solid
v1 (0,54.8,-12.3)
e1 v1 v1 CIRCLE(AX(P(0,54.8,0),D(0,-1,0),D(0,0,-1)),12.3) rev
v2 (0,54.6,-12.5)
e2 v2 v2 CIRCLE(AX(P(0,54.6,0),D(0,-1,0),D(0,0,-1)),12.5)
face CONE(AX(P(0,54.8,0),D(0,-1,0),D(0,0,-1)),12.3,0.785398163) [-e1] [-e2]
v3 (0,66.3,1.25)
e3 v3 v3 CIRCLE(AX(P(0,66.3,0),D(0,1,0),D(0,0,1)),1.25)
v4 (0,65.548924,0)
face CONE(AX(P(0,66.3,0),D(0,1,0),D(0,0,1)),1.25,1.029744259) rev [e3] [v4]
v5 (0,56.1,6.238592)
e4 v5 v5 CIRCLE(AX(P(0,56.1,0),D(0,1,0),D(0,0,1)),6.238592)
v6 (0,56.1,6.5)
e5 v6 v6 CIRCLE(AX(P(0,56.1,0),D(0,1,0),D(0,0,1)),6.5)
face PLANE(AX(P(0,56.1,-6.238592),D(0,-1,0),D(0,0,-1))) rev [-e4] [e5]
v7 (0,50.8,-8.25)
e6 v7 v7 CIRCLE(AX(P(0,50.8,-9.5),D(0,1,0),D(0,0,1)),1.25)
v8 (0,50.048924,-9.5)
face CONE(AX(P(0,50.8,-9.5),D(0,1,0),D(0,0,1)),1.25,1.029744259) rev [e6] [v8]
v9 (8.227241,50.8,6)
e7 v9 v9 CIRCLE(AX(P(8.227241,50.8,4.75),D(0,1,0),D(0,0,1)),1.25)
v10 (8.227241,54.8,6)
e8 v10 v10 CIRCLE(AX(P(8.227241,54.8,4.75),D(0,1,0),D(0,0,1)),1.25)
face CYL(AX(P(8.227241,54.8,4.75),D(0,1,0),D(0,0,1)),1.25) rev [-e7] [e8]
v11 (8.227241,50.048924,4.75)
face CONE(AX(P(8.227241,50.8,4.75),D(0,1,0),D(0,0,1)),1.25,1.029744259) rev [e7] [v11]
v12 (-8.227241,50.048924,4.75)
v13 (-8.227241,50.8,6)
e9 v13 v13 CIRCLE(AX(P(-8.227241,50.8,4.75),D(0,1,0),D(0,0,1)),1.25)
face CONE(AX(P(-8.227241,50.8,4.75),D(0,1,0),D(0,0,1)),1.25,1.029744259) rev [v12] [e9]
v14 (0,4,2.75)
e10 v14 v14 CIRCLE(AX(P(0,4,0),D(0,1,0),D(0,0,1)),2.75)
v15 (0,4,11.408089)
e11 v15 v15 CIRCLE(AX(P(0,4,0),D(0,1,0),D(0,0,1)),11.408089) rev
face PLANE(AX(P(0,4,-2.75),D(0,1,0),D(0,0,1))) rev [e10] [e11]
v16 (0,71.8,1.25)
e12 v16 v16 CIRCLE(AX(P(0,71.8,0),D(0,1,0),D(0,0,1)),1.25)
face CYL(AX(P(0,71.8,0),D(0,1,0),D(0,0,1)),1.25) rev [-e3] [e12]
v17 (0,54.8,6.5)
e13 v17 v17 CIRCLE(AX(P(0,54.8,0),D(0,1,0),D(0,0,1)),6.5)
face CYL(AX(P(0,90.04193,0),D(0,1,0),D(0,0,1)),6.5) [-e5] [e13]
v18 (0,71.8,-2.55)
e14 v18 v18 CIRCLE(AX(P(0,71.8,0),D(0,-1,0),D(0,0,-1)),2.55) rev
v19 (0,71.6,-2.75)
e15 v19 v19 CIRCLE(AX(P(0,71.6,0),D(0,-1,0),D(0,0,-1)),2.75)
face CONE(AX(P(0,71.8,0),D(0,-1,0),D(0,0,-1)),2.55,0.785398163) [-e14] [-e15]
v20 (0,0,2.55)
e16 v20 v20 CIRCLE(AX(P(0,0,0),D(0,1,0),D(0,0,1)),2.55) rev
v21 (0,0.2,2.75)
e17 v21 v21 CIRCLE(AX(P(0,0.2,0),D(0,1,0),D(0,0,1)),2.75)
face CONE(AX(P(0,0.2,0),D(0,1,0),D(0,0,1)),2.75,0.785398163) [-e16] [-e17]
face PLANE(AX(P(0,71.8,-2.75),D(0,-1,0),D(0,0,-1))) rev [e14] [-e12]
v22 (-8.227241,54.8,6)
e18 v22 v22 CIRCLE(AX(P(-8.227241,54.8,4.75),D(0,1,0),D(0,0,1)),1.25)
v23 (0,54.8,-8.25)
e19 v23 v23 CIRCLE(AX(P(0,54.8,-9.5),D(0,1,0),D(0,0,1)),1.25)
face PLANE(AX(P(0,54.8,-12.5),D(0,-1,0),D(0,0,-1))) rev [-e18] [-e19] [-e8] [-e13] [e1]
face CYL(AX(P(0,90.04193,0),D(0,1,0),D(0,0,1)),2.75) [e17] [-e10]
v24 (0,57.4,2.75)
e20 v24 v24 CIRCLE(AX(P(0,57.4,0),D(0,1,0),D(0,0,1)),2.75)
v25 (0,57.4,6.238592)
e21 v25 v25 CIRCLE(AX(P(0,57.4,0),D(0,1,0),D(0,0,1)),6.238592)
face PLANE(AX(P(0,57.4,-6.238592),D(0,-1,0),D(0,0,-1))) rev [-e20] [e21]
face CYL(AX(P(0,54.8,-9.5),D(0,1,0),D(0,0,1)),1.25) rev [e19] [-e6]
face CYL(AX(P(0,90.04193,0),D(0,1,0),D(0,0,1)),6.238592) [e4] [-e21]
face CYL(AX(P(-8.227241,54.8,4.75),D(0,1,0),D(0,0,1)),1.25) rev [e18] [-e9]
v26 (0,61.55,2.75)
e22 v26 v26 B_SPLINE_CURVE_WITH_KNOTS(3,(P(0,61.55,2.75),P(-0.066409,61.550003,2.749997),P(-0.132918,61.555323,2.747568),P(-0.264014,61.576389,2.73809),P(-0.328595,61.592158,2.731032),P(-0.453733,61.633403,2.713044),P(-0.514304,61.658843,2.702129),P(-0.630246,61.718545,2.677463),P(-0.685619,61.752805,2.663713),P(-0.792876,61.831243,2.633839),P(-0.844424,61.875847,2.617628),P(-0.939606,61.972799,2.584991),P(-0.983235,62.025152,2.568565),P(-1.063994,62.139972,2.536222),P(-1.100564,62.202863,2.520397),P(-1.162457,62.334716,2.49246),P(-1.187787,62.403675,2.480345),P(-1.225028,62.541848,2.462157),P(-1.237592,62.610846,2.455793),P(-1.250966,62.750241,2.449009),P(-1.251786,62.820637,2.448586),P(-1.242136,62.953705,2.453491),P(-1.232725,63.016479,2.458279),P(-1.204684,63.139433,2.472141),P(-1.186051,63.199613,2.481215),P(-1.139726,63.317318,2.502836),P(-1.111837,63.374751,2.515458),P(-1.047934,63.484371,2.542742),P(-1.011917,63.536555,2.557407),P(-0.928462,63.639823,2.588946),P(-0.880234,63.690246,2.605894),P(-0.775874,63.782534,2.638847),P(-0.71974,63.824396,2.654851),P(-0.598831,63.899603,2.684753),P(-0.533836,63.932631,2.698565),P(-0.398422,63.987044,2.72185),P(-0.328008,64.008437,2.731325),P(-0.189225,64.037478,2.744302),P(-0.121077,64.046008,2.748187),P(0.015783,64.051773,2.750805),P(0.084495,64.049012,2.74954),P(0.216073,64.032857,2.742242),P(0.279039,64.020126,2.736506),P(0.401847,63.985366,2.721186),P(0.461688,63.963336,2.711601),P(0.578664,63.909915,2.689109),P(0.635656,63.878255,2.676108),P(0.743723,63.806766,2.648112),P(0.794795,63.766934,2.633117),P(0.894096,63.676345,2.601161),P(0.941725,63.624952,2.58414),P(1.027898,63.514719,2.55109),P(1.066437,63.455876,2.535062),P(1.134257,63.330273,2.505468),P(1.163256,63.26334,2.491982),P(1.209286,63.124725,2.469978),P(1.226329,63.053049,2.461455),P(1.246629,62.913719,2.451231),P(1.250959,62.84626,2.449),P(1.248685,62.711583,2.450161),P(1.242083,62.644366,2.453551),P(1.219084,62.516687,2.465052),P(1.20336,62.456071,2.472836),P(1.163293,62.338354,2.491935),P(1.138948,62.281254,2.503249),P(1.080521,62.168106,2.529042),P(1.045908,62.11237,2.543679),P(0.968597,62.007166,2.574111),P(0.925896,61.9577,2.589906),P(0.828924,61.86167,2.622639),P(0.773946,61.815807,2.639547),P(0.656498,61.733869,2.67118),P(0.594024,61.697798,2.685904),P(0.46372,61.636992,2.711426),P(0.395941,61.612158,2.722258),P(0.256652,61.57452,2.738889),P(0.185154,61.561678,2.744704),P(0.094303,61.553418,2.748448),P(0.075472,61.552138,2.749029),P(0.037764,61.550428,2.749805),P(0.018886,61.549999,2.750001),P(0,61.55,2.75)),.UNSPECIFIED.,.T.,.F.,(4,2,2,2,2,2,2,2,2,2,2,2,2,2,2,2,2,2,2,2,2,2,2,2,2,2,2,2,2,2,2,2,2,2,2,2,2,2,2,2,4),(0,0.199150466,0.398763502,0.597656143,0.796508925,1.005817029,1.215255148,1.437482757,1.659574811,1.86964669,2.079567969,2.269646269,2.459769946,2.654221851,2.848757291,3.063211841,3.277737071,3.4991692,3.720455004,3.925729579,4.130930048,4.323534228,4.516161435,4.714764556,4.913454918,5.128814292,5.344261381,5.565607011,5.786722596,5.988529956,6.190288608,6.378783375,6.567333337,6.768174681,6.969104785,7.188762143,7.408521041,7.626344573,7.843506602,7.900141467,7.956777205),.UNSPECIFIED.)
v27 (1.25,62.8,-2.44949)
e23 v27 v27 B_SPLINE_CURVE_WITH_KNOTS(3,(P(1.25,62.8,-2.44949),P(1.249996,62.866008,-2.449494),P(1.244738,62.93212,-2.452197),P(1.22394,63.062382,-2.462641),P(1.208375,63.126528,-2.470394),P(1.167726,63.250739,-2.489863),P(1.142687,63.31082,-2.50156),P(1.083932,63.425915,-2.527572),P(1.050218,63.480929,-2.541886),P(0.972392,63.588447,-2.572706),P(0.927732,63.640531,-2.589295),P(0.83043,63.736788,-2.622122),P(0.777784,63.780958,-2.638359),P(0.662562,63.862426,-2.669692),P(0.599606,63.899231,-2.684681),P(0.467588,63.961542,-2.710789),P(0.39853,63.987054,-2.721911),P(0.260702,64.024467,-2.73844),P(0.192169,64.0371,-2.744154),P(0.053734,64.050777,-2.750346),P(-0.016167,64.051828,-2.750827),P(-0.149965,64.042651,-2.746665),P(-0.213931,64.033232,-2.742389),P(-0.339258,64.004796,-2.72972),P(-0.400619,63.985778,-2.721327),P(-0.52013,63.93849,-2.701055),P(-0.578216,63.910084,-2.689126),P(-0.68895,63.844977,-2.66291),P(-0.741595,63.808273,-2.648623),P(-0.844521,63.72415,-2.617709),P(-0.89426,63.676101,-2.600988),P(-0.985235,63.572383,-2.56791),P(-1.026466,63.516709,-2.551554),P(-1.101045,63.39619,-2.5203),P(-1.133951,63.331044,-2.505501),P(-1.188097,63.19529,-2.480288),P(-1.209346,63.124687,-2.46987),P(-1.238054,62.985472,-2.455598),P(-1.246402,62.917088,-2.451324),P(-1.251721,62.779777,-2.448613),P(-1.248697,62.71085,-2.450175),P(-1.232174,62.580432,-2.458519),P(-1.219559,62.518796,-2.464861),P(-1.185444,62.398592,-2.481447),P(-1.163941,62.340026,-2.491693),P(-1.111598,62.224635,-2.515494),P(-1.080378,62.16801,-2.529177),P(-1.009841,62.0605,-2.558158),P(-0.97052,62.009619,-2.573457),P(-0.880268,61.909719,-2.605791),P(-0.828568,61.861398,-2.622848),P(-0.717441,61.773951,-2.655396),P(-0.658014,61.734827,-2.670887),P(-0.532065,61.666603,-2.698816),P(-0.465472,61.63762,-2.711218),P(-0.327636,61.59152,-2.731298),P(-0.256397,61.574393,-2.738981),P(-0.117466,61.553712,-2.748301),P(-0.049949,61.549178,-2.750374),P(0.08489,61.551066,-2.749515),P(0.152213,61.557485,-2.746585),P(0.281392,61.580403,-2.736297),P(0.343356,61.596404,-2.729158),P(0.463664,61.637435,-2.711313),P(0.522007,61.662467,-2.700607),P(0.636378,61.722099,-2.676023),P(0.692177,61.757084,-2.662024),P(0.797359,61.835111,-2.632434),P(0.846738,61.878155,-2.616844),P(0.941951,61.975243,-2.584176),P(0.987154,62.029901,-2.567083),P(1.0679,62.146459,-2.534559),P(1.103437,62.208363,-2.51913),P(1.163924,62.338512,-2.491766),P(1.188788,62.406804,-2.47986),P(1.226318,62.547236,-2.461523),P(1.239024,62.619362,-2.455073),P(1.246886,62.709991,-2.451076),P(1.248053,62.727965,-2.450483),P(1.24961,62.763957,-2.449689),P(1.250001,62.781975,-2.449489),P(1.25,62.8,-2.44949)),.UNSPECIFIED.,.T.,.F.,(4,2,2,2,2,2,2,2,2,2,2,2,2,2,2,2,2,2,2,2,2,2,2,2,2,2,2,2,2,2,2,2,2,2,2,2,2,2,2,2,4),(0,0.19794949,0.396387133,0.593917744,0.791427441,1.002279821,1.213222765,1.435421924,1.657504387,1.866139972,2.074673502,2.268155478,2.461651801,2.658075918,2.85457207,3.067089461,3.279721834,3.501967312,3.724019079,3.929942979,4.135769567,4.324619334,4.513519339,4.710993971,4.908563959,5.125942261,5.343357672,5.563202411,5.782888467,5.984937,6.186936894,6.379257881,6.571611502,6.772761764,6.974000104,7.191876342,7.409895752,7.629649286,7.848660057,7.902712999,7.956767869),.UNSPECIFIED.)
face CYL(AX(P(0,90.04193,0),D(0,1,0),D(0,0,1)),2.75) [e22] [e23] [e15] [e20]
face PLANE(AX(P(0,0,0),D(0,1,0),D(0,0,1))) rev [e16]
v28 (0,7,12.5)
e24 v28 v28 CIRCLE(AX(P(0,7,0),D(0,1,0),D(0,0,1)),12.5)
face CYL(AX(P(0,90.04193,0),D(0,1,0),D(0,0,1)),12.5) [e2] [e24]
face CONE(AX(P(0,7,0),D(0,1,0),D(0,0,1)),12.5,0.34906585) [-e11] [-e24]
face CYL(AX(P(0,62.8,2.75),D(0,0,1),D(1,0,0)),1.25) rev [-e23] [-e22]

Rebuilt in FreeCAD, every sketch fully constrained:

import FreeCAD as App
import Part
import Sketcher

V = App.Vector
Q = App.Units.Quantity


def edges_at(feature, points):
    """Names of the edges that pass closest to the given points."""
    edges = feature.Shape.Edges
    near = lambda p: min(range(len(edges)), key=lambda i: edges[i].distToShape(Part.Vertex(*p))[0])
    return sorted({f"Edge{near(p) + 1}" for p in points})

doc = App.newDocument("Part")
body = doc.addObject("PartDesign::Body", "Body")

sketch1 = body.newObject("Sketcher::SketchObject", "Sketch")
sketch1.AttachmentSupport = (doc.getObject("YZ_Plane"), [""])
sketch1.MapMode = "FlatFace"
sketch1.addGeometry([
    Part.LineSegment(V(0, 0, 0), V(0, -2.75, 0)),
    Part.LineSegment(V(0, -2.75, 0), V(4, -2.75, 0)),
    Part.LineSegment(V(4, -2.75, 0), V(4, -12.5, 0)),
    Part.LineSegment(V(4, -12.5, 0), V(54.8, -12.5, 0)),
    Part.LineSegment(V(54.8, -12.5, 0), V(54.8, -6.5, 0)),
    Part.LineSegment(V(54.8, -6.5, 0), V(56.1, -6.5, 0)),
    Part.LineSegment(V(56.1, -6.5, 0), V(56.1, -6.24, 0)),
    Part.LineSegment(V(56.1, -6.24, 0), V(57.4, -6.24, 0)),
    Part.LineSegment(V(57.4, -6.24, 0), V(57.4, -2.75, 0)),
    Part.LineSegment(V(57.4, -2.75, 0), V(71.8, -2.75, 0)),
    Part.LineSegment(V(71.8, -2.75, 0), V(71.8, 0, 0)),
    Part.LineSegment(V(71.8, 0, 0), V(0, 0, 0)),
], False)
sketch1.addConstraint([
    Sketcher.Constraint("Coincident", 0, 2, 1, 1),
    Sketcher.Constraint("Coincident", 1, 2, 2, 1),
    Sketcher.Constraint("Coincident", 2, 2, 3, 1),
    Sketcher.Constraint("Coincident", 3, 2, 4, 1),
    Sketcher.Constraint("Coincident", 4, 2, 5, 1),
    Sketcher.Constraint("Coincident", 5, 2, 6, 1),
    Sketcher.Constraint("Coincident", 6, 2, 7, 1),
    Sketcher.Constraint("Coincident", 7, 2, 8, 1),
    Sketcher.Constraint("Coincident", 8, 2, 9, 1),
    Sketcher.Constraint("Coincident", 9, 2, 10, 1),
    Sketcher.Constraint("Coincident", 10, 2, 11, 1),
    Sketcher.Constraint("Coincident", 11, 2, 0, 1),
    Sketcher.Constraint("Vertical", 0),
    Sketcher.Constraint("Horizontal", 1),
    Sketcher.Constraint("Vertical", 2),
    Sketcher.Constraint("Horizontal", 3),
    Sketcher.Constraint("Vertical", 4),
    Sketcher.Constraint("Horizontal", 5),
    Sketcher.Constraint("Vertical", 6),
    Sketcher.Constraint("Horizontal", 7),
    Sketcher.Constraint("Vertical", 8),
    Sketcher.Constraint("Horizontal", 9),
    Sketcher.Constraint("Vertical", 10),
    Sketcher.Constraint("Horizontal", 11),
    Sketcher.Constraint("Coincident", 11, 2, -1, 1),
    Sketcher.Constraint("Horizontal", 1, 2, 8, 2),
    Sketcher.Constraint("Equal", 5, 7),
    Sketcher.Constraint("DistanceX", 1, 1, 1, 2, Q("4 mm")),
    Sketcher.Constraint("DistanceY", 4, 1, 4, 2, Q("6 mm")),
    Sketcher.Constraint("DistanceX", 3, 1, 3, 2, Q("50.8 mm")),
    Sketcher.Constraint("DistanceX", 5, 1, 5, 2, Q("1.3 mm")),
    Sketcher.Constraint("DistanceX", 9, 1, 9, 2, Q("14.4 mm")),
    Sketcher.Constraint("DistanceY", 0, 2, 0, 1, Q("2.75 mm")),
    Sketcher.Constraint("DistanceY", 2, 2, 2, 1, Q("9.75 mm")),
    Sketcher.Constraint("DistanceY", 6, 1, 6, 2, Q("0.261408 mm")),
])
revolution = body.newObject("PartDesign::Revolution", "Revolution")
revolution.Profile = sketch1
revolution.ReferenceAxis = (sketch1, ["H_Axis"])
revolution.Angle = 360
doc.recompute()

chamfer = body.newObject("PartDesign::Chamfer", "Chamfer")
chamfer.Base = (revolution, edges_at(revolution, [(0, 54.8, -12.5), (0, 0, -2.75), (0, 71.8, -2.75)]))
chamfer.Size = 0.2
doc.recompute()

chamfer2 = body.newObject("PartDesign::Chamfer", "Chamfer001")
chamfer2.Base = (chamfer, edges_at(chamfer, [(0, 4, -12.5)]))
chamfer2.ChamferType = "Two distances"
chamfer2.Size = 3
chamfer2.Size2 = 1.091911
chamfer2.FlipDirection = True

sketch2 = body.newObject("Sketcher::SketchObject", "Sketch001")
sketch2.AttachmentSupport = (doc.getObject("XZ_Plane"), [""])
sketch2.MapMode = "FlatFace"
sketch2.AttachmentOffset = App.Placement(V(0, 0, -71.8), App.Rotation())
sketch2.addGeometry(Part.Circle(V(0, 0, 0), V(0, 0, 1), 1.2), False)
sketch2.addConstraint([
    Sketcher.Constraint("Coincident", 0, 3, -1, 1),
    Sketcher.Constraint("Diameter", 0, Q("2.5 mm")),
])
doc.recompute()
hole = body.newObject("PartDesign::Hole", "Hole")
hole.Profile = sketch2
hole.ThreadType = "None"
hole.Diameter = 2.5
hole.DepthType = "Dimension"
hole.Depth = 5.5
hole.DrillPoint = "Angled"
hole.DrillPointAngle = 118
hole.Reversed = True

sketch3 = body.newObject("Sketcher::SketchObject", "Sketch002")
sketch3.AttachmentSupport = (doc.getObject("XY_Plane"), [""])
sketch3.MapMode = "FlatFace"
sketch3.AttachmentOffset = App.Placement(V(0, 0, 2.75), App.Rotation())
sketch3.addGeometry(Part.Circle(V(0, 62.8, 0), V(0, 0, 1), 1.2), False)
sketch3.addConstraint([
    Sketcher.Constraint("PointOnObject", 0, 3, -2),
    Sketcher.Constraint("Diameter", 0, Q("2.5 mm")),
    Sketcher.Constraint("DistanceY", -1, 1, 0, 3, Q("62.8 mm")),
])
doc.recompute()
hole2 = body.newObject("PartDesign::Hole", "Hole001")
hole2.Profile = sketch3
hole2.ThreadType = "None"
hole2.Diameter = 2.5
hole2.DepthType = "Dimension"
hole2.Depth = 7.5
hole2.DrillPoint = "Angled"
hole2.DrillPointAngle = 118

sketch4 = body.newObject("Sketcher::SketchObject", "Sketch003")
sketch4.AttachmentSupport = (doc.getObject("XZ_Plane"), [""])
sketch4.MapMode = "FlatFace"
sketch4.AttachmentOffset = App.Placement(V(0, 0, -54.8), App.Rotation())
sketch4.addGeometry([
    Part.Circle(V(0, -9.5, 0), V(0, 0, 1), 1.2),
    Part.Circle(V(-8.2, 4.8, 0), V(0, 0, 1), 1.2),
    Part.Circle(V(8.2, 4.8, 0), V(0, 0, 1), 1.2),
], False)
sketch4.addConstraint([
    Sketcher.Constraint("Equal", 0, 1),
    Sketcher.Constraint("Equal", 1, 2),
    Sketcher.Constraint("Symmetric", 1, 3, 2, 3, -2),
    Sketcher.Constraint("PointOnObject", 0, 3, -2),
    Sketcher.Constraint("Diameter", 0, Q("2.5 mm")),
    Sketcher.Constraint("DistanceY", 0, 3, -1, 1, Q("9.5 mm")),
    Sketcher.Constraint("DistanceY", -1, 1, 1, 3, Q("4.75 mm")),
    Sketcher.Constraint("DistanceX", 1, 3, -1, 1, Q("8.227241 mm")),
])
doc.recompute()
hole3 = body.newObject("PartDesign::Hole", "Hole002")
hole3.Profile = sketch4
hole3.ThreadType = "None"
hole3.Diameter = 2.5
hole3.DepthType = "Dimension"
hole3.Depth = 4
hole3.DrillPoint = "Angled"
hole3.DrillPointAngle = 118
hole3.Reversed = True

doc.recompute()
